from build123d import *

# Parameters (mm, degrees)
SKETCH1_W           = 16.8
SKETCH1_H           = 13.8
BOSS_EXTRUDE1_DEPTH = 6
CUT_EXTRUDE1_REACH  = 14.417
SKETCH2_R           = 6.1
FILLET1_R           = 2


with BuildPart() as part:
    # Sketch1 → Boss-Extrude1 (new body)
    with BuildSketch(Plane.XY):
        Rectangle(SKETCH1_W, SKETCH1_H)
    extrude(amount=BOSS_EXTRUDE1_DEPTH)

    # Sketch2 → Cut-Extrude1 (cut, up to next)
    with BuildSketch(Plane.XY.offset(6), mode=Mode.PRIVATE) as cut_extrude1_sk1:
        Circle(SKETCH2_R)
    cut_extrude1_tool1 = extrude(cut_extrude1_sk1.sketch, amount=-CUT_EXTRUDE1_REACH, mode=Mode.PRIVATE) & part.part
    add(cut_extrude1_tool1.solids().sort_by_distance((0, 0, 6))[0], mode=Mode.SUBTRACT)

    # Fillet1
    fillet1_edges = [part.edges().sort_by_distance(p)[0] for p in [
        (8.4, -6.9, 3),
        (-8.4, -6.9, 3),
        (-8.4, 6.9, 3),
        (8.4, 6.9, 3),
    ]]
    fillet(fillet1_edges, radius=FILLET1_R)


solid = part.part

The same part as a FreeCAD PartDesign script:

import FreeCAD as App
import Part
import Sketcher
Q = App.Units.Quantity


def edges_at(feature, points):
    """Names of the edges that pass closest to the given points."""
    edges = feature.Shape.Edges
    near = lambda p: min(range(len(edges)), key=lambda i: edges[i].distToShape(Part.Vertex(*p))[0])
    return sorted({f"Edge{near(p) + 1}" for p in points})

doc = App.newDocument("Part")
body = doc.addObject("PartDesign::Body", "Body")

# Sketch on XY plane
sketch1 = body.newObject("Sketcher::SketchObject", "Sketch")
sketch1.AttachmentSupport = (doc.getObject("XY_Plane"), [""])
sketch1.MapMode = "FlatFace"
sketch1.addGeometry([
    Part.LineSegment(App.Vector(-8, 7, 0), App.Vector(-8, -7, 0)),
    Part.LineSegment(App.Vector(-8, -7, 0), App.Vector(8, -7, 0)),
    Part.LineSegment(App.Vector(8, -7, 0), App.Vector(8, 7, 0)),
    Part.LineSegment(App.Vector(8, 7, 0), App.Vector(-8, 7, 0)),
], False)
sketch1.addConstraint([
    Sketcher.Constraint("Coincident", 0, 2, 1, 1),
    Sketcher.Constraint("Coincident", 1, 2, 2, 1),
    Sketcher.Constraint("Coincident", 2, 2, 3, 1),
    Sketcher.Constraint("Coincident", 3, 2, 0, 1),
    Sketcher.Constraint("Vertical", 0),
    Sketcher.Constraint("Horizontal", 1),
    Sketcher.Constraint("Vertical", 2),
    Sketcher.Constraint("Horizontal", 3),
    Sketcher.Constraint("Symmetric", 0, 2, 2, 2, -1, 1),
    Sketcher.Constraint("DistanceX", 1, 1, 1, 2, Q("16.8 mm")),
    Sketcher.Constraint("DistanceY", 0, 2, 0, 1, Q("13.8 mm")),
])
pad1 = body.newObject("PartDesign::Pad", "Pad")
pad1.Profile = sketch1
pad1.Length = 6

# Sketch on XY plane
sketch2 = body.newObject("Sketcher::SketchObject", "Sketch001")
sketch2.AttachmentSupport = (doc.getObject("XY_Plane"), [""])
sketch2.MapMode = "FlatFace"
sketch2.AttachmentOffset = App.Placement(App.Vector(0, 0, 6), App.Rotation())
sketch2.addGeometry(Part.Circle(App.Vector(0, 0, 0), App.Vector(0, 0, 1), 6), False)
sketch2.addConstraint([
    Sketcher.Constraint("Coincident", 0, 3, -1, 1),
    Sketcher.Constraint("Diameter", 0, Q("12.2 mm")),
])
pocket1 = body.newObject("PartDesign::Pocket", "Pocket")
pocket1.Profile = sketch2
pocket1.Type = "UpToFirst"
doc.recompute()

fillet = body.newObject("PartDesign::Fillet", "Fillet")
fillet.Base = (pocket1, edges_at(pocket1, [
    (8.4, -6.9, 3),
    (-8.4, -6.9, 3),
    (-8.4, 6.9, 3),
    (8.4, 6.9, 3),
]))
fillet.Radius = 2

doc.recompute()
